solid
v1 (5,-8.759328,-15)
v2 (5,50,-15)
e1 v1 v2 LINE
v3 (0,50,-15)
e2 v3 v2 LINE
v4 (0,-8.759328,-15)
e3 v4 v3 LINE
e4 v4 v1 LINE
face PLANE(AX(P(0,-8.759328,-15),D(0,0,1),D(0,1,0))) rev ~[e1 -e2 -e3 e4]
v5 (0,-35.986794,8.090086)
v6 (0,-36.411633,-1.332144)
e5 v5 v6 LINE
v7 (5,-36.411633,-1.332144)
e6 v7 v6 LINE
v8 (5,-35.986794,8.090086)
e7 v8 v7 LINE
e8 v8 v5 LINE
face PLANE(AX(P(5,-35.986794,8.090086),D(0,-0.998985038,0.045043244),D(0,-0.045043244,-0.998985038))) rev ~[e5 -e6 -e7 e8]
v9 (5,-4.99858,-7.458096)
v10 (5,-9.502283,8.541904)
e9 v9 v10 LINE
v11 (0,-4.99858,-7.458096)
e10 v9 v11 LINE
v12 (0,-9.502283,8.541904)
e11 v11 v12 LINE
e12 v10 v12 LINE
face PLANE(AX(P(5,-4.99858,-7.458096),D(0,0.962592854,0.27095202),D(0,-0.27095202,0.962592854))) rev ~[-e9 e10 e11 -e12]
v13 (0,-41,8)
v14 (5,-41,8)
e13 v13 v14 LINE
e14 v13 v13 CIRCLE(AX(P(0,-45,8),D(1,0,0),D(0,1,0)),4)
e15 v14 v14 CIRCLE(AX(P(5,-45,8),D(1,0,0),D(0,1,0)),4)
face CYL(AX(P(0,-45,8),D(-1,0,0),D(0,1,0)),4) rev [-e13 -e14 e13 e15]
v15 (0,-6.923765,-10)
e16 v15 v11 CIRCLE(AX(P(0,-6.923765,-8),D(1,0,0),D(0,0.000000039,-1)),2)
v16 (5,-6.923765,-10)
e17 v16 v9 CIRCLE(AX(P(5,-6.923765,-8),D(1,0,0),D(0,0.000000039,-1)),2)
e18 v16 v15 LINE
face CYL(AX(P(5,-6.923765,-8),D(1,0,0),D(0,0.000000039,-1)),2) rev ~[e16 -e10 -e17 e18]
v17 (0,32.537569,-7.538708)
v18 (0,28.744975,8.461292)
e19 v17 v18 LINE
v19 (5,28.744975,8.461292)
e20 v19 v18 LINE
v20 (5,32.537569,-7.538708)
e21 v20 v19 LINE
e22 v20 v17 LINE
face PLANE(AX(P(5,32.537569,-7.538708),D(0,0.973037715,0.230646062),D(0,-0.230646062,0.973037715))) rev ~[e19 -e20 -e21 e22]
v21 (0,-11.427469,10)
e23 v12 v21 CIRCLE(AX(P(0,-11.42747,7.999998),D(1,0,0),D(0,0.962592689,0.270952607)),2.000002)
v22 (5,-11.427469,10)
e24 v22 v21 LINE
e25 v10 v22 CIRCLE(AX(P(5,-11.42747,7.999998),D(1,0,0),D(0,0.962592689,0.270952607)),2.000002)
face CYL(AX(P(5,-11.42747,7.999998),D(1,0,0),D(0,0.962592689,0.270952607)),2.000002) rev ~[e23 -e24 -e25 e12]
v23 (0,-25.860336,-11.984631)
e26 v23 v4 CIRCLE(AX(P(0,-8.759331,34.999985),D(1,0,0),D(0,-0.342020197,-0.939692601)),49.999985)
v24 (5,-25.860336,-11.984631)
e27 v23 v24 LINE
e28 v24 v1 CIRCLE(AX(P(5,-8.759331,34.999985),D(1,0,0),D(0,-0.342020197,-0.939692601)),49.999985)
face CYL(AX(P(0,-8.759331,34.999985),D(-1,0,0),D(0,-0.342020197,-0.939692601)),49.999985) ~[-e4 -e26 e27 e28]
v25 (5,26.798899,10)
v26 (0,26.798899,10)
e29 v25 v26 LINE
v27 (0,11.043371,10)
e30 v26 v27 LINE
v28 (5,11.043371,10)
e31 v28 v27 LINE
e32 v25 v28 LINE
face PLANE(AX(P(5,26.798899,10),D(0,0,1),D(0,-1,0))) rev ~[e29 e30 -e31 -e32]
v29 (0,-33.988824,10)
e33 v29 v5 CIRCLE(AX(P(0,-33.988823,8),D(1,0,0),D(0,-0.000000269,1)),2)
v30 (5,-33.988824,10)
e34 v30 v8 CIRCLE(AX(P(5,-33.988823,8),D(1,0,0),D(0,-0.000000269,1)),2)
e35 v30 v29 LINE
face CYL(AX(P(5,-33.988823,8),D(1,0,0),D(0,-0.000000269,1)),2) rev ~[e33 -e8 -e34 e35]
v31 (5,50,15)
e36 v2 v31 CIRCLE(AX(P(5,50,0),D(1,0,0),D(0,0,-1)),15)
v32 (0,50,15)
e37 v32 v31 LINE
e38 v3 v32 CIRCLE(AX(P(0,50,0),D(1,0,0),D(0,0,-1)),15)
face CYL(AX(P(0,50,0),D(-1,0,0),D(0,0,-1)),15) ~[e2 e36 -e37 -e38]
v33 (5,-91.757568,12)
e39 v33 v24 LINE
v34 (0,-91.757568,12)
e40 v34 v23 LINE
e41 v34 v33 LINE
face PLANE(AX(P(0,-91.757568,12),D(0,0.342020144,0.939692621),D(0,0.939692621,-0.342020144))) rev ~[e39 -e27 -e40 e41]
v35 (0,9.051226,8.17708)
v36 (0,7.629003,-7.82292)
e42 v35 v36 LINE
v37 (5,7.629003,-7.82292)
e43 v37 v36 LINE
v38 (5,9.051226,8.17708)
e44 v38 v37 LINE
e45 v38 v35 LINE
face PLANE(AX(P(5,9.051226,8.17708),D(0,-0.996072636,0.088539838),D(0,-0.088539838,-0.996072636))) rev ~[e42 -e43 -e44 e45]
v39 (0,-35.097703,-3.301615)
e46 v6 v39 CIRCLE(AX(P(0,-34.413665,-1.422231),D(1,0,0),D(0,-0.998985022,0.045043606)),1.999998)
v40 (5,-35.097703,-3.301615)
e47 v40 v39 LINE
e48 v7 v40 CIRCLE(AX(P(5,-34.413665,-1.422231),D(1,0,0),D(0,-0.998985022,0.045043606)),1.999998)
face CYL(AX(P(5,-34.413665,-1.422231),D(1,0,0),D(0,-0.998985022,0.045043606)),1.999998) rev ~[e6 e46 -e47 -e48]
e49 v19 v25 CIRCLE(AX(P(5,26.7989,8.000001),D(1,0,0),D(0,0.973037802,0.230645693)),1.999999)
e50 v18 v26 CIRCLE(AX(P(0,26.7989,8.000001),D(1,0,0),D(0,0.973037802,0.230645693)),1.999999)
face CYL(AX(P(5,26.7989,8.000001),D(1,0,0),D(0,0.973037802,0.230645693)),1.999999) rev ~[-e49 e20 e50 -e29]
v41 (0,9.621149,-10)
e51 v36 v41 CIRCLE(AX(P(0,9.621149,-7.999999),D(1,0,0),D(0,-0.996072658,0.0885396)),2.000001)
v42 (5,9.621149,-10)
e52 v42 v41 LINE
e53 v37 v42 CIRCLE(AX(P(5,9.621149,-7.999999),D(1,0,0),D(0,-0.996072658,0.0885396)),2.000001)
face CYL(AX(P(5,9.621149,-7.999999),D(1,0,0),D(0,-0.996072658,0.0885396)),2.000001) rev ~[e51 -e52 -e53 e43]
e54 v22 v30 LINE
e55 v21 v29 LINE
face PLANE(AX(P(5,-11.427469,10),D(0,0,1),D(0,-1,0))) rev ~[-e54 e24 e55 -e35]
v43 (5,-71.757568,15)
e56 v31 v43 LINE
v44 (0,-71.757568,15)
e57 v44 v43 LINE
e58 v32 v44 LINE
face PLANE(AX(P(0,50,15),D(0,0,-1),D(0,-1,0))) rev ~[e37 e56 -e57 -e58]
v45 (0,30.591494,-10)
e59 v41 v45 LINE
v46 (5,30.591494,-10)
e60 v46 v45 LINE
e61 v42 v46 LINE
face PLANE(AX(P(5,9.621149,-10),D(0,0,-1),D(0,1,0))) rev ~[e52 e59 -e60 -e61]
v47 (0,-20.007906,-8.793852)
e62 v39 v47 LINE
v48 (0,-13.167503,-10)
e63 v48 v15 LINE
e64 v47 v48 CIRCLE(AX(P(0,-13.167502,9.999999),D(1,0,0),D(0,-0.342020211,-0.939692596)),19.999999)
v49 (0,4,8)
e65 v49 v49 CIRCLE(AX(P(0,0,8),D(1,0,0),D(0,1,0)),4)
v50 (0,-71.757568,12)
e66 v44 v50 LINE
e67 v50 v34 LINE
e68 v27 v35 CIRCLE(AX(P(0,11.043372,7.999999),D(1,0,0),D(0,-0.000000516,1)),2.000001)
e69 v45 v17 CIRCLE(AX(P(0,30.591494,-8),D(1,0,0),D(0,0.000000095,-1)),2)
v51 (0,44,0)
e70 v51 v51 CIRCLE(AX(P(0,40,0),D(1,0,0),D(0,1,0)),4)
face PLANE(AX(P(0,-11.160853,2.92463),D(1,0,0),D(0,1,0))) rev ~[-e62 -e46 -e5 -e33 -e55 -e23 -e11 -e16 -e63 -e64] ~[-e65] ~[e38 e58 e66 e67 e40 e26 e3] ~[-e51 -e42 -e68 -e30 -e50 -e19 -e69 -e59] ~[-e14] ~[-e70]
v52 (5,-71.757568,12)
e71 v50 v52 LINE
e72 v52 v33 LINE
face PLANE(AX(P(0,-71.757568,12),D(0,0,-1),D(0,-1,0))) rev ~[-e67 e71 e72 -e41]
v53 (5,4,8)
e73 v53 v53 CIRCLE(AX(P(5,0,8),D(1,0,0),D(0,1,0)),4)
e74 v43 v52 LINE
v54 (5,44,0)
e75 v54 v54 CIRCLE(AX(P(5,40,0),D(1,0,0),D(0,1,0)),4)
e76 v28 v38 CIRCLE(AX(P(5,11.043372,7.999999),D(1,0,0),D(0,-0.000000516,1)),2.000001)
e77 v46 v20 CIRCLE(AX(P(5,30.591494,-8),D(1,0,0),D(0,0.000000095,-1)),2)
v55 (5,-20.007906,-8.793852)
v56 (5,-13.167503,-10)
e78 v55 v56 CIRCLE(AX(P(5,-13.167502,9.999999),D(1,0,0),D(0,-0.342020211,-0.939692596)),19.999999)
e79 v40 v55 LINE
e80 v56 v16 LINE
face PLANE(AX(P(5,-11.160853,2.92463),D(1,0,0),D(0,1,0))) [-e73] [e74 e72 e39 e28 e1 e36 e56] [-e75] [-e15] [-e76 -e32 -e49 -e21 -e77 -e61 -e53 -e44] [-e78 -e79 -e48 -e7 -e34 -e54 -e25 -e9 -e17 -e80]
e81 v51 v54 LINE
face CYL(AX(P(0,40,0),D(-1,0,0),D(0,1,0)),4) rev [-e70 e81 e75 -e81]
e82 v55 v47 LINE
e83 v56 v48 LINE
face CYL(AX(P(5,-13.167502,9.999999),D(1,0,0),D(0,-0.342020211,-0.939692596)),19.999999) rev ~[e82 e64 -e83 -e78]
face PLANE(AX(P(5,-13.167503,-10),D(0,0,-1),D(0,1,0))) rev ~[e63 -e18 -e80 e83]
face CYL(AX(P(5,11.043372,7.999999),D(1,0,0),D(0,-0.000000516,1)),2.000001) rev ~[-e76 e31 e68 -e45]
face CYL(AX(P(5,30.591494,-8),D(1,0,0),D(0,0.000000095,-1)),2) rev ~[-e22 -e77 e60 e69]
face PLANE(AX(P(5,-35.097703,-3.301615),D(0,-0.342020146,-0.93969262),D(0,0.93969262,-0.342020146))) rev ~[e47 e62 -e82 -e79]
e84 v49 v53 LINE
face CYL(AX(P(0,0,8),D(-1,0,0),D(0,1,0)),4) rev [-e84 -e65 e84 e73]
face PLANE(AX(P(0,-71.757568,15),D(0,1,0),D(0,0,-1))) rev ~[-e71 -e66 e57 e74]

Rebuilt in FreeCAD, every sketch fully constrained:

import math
import FreeCAD as App
import Part
import Sketcher
Q = App.Units.Quantity

doc = App.newDocument("Part")
body = doc.addObject("PartDesign::Body", "Body")

# Sketch on YZ plane
sketch1 = body.newObject("Sketcher::SketchObject", "Sketch")
sketch1.AttachmentSupport = (doc.getObject("YZ_Plane"), [""])
sketch1.MapMode = "FlatFace"
sketch1.addGeometry([
    Part.LineSegment(App.Vector(50, 15, 0), App.Vector(-71.8, 15, 0)),  # 0
    Part.LineSegment(App.Vector(-71.8, 15, 0), App.Vector(-71.8, 12, 0)),  # 1
    Part.LineSegment(App.Vector(-71.8, 12, 0), App.Vector(-91.8, 12, 0)),  # 2
    Part.LineSegment(App.Vector(-91.8, 12, 0), App.Vector(-25.9, -12, 0)),  # 3
    Part.ArcOfCircle(Part.Circle(App.Vector(-8.8, 35, 0), App.Vector(0, 0, 1), 50), math.radians(-110), math.radians(-90)),  # 4
    Part.LineSegment(App.Vector(-8.8, -15, 0), App.Vector(50, -15, 0)),  # 5
    Part.ArcOfCircle(Part.Circle(App.Vector(50, 0, 0), App.Vector(0, 0, 1), 15), math.radians(-90), math.radians(90)),  # 6
    Part.Circle(App.Vector(40, 0, 0), App.Vector(0, 0, 1), 4),  # 7
    Part.Circle(App.Vector(-45, 8, 0), App.Vector(0, 0, 1), 4),  # 8
    Part.Circle(App.Vector(0, 8, 0), App.Vector(0, 0, 1), 4),  # 9
], False)
sketch1.addConstraint([
    Sketcher.Constraint("Coincident", 0, 2, 1, 1),
    Sketcher.Constraint("Coincident", 1, 2, 2, 1),
    Sketcher.Constraint("Coincident", 2, 2, 3, 1),
    Sketcher.Constraint("Tangent", 3, 2, 4, 1),
    Sketcher.Constraint("Tangent", 4, 2, 5, 1),
    Sketcher.Constraint("Tangent", 5, 2, 6, 1),
    Sketcher.Constraint("Tangent", 6, 2, 0, 1),
    Sketcher.Constraint("Horizontal", 0),
    Sketcher.Constraint("Vertical", 1),
    Sketcher.Constraint("Horizontal", 2),
    Sketcher.Constraint("Horizontal", 5),
    Sketcher.Constraint("Equal", 7, 8),
    Sketcher.Constraint("Equal", 8, 9),
    Sketcher.Constraint("PointOnObject", 6, 3, -1),
    Sketcher.Constraint("PointOnObject", 7, 3, -1),
    Sketcher.Constraint("PointOnObject", 9, 3, -2),
    Sketcher.Constraint("Horizontal", 8, 3, 9, 3),
    Sketcher.Constraint("Diameter", 7, Q("8 mm")),
    Sketcher.Constraint("Radius", 6, Q("15 mm")),
    Sketcher.Constraint("DistanceX", 2, 2, 2, 1, Q("20 mm")),
    Sketcher.Constraint("DistanceY", 1, 2, 1, 1, Q("3 mm")),
    Sketcher.Constraint("Angle", 3, Q("-20 deg")),
    Sketcher.Constraint("DistanceX", -1, 1, 6, 3, Q("50 mm")),
    Sketcher.Constraint("DistanceX", -1, 1, 7, 3, Q("40 mm")),
    Sketcher.Constraint("DistanceX", 8, 3, -1, 1, Q("45 mm")),
    Sketcher.Constraint("DistanceY", -1, 1, 8, 3, Q("8 mm")),
    Sketcher.Constraint("Radius", 4, Q("49.999985 mm")),
    Sketcher.Constraint("DistanceX", 0, 2, 0, 1, Q("121.757568 mm")),
])
pad1 = body.newObject("PartDesign::Pad", "Pad")
pad1.Profile = sketch1
pad1.Length = 5

# Sketch on YZ plane
sketch2 = body.newObject("Sketcher::SketchObject", "Sketch001")
sketch2.AttachmentSupport = (doc.getObject("YZ_Plane"), [""])
sketch2.MapMode = "FlatFace"
sketch2.AttachmentOffset = App.Placement(App.Vector(0, 0, 5), App.Rotation())
sketch2.addGeometry([
    Part.LineSegment(App.Vector(-11.4, 10, 0), App.Vector(-34, 10, 0)),  # 0
    Part.ArcOfCircle(Part.Circle(App.Vector(-34, 8, 0), App.Vector(0, 0, 1), 2), math.radians(90), math.radians(177)),  # 1
    Part.LineSegment(App.Vector(-36, 8.1, 0), App.Vector(-36.4, -1.3, 0)),  # 2
    Part.ArcOfCircle(Part.Circle(App.Vector(-34.4, -1.4, 0), App.Vector(0, 0, 1), 2), math.radians(177), math.radians(250)),  # 3
    Part.LineSegment(App.Vector(-35.1, -3.3, 0), App.Vector(-20, -8.8, 0)),  # 4
    Part.ArcOfCircle(Part.Circle(App.Vector(-13.2, 10, 0), App.Vector(0, 0, 1), 20), math.radians(-110), math.radians(-90)),  # 5
    Part.LineSegment(App.Vector(-13.2, -10, 0), App.Vector(-6.9, -10, 0)),  # 6
    Part.ArcOfCircle(Part.Circle(App.Vector(-6.9, -8, 0), App.Vector(0, 0, 1), 2), math.radians(-90), math.radians(16)),  # 7
    Part.LineSegment(App.Vector(-5, -7.5, 0), App.Vector(-9.5, 8.5, 0)),  # 8
    Part.ArcOfCircle(Part.Circle(App.Vector(-11.4, 8, 0), App.Vector(0, 0, 1), 2), math.radians(16), math.radians(90)),  # 9
    Part.LineSegment(App.Vector(26.8, 10, 0), App.Vector(11, 10, 0)),  # 10
    Part.ArcOfCircle(Part.Circle(App.Vector(11, 8, 0), App.Vector(0, 0, 1), 2), math.radians(90), math.radians(175)),  # 11
    Part.LineSegment(App.Vector(9.1, 8.2, 0), App.Vector(7.6, -7.8, 0)),  # 12
    Part.ArcOfCircle(Part.Circle(App.Vector(9.6, -8, 0), App.Vector(0, 0, 1), 2), math.radians(175), math.radians(270)),  # 13
    Part.LineSegment(App.Vector(9.6, -10, 0), App.Vector(30.6, -10, 0)),  # 14
    Part.ArcOfCircle(Part.Circle(App.Vector(30.6, -8, 0), App.Vector(0, 0, 1), 2), math.radians(-90), math.radians(13)),  # 15
    Part.LineSegment(App.Vector(32.5, -7.5, 0), App.Vector(28.7, 8.5, 0)),  # 16
    Part.ArcOfCircle(Part.Circle(App.Vector(26.8, 8, 0), App.Vector(0, 0, 1), 2), math.radians(13), math.radians(90)),  # 17
], False)
sketch2.addConstraint([
    Sketcher.Constraint("Tangent", 0, 2, 1, 1),
    Sketcher.Constraint("Tangent", 1, 2, 2, 1),
    Sketcher.Constraint("Tangent", 2, 2, 3, 1),
    Sketcher.Constraint("Tangent", 3, 2, 4, 1),
    Sketcher.Constraint("Tangent", 4, 2, 5, 1),
    Sketcher.Constraint("Tangent", 5, 2, 6, 1),
    Sketcher.Constraint("Tangent", 6, 2, 7, 1),
    Sketcher.Constraint("Tangent", 7, 2, 8, 1),
    Sketcher.Constraint("Tangent", 8, 2, 9, 1),
    Sketcher.Constraint("Tangent", 9, 2, 0, 1),
    Sketcher.Constraint("Tangent", 10, 2, 11, 1),
    Sketcher.Constraint("Tangent", 11, 2, 12, 1),
    Sketcher.Constraint("Tangent", 12, 2, 13, 1),
    Sketcher.Constraint("Tangent", 13, 2, 14, 1),
    Sketcher.Constraint("Tangent", 14, 2, 15, 1),
    Sketcher.Constraint("Tangent", 15, 2, 16, 1),
    Sketcher.Constraint("Tangent", 16, 2, 17, 1),
    Sketcher.Constraint("Tangent", 17, 2, 10, 1),
    Sketcher.Constraint("Horizontal", 0),
    Sketcher.Constraint("Horizontal", 6),
    Sketcher.Constraint("Horizontal", 10),
    Sketcher.Constraint("Horizontal", 14),
    Sketcher.Constraint("Equal", 3, 7),
    Sketcher.Constraint("Equal", 1, 9),
    Sketcher.Constraint("Equal", 9, 11),
    Sketcher.Constraint("Equal", 11, 13),
    Sketcher.Constraint("Equal", 13, 15),
    Sketcher.Constraint("Equal", 15, 17),
    Sketcher.Constraint("Horizontal", 9, 3, 11, 3),
    Sketcher.Constraint("Horizontal", 7, 3, 13, 3),
    Sketcher.Constraint("Horizontal", 5, 3, 0, 2),
    Sketcher.Constraint("Horizontal", 6, 2, 13, 2),
    Sketcher.Constraint("Radius", 1, Q("2 mm")),
    Sketcher.Constraint("Radius", 5, Q("19.999999 mm")),
    Sketcher.Constraint("Angle", 4, Q("-20 deg")),
    Sketcher.Constraint("DistanceY", -1, 1, 1, 3, Q("8 mm")),
    Sketcher.Constraint("DistanceX", -1, 1, 17, 3, Q("26.7989 mm")),
    Sketcher.Constraint("DistanceX", 3, 3, 7, 3, Q("27.4899 mm")),
    Sketcher.Constraint("DistanceY", 3, 2, 1, 2, Q("11.391701 mm")),
    Sketcher.Constraint("Distance", 16, Q("16.44335 mm")),
    Sketcher.Constraint("DistanceX", 0, 2, 0, 1, Q("22.561355 mm")),
    Sketcher.Constraint("DistanceX", 6, 1, 6, 2, Q("6.243738 mm")),
    Sketcher.Constraint("DistanceX", 10, 2, 10, 1, Q("15.755528 mm")),
    Sketcher.Constraint("DistanceX", 14, 1, 14, 2, Q("20.970345 mm")),
    Sketcher.Constraint("DistanceX", 9, 3, -1, 1, Q("11.42747 mm")),
])
pocket1 = body.newObject("PartDesign::Pocket", "Pocket")
pocket1.Profile = sketch2
pocket1.Length = 25

doc.recompute()
